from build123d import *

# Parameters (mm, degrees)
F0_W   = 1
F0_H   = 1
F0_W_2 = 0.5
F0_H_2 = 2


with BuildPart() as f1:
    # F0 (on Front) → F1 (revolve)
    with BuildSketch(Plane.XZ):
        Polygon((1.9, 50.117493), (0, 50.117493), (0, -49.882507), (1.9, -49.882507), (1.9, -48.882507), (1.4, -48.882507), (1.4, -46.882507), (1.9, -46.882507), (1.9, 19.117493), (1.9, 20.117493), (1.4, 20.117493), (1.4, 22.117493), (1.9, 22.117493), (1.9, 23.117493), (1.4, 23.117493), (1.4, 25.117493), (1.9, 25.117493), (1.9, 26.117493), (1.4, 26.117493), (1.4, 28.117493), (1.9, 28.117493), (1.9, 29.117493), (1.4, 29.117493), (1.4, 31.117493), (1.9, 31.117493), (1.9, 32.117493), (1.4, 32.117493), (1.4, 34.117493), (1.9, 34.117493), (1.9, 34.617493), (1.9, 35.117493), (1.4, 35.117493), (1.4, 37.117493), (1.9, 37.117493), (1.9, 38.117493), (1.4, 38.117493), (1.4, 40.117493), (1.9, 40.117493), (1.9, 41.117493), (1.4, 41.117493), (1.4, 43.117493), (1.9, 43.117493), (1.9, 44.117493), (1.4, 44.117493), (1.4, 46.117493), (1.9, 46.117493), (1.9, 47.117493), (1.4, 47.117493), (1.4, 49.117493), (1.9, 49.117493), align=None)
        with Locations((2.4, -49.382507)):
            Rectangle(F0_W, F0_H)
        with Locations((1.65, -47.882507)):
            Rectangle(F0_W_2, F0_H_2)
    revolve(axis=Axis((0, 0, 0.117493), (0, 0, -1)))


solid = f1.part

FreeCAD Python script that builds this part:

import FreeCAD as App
import Part
import Sketcher
Q = App.Units.Quantity

doc = App.newDocument("Part")
body = doc.addObject("PartDesign::Body", "Body")

# Sketch on XZ plane
sketch1 = doc.addObject("Sketcher::SketchObject", "Sketch")
body.addObject(sketch1)
sketch1.AttachmentSupport = (doc.XZ_Plane, [""])
sketch1.MapMode = "FlatFace"
sketch1.addGeometry([
    Part.LineSegment(App.Vector(1.9, 50.1, 0), App.Vector(0, 50.1, 0)),  # 0
    Part.LineSegment(App.Vector(0, 50.1, 0), App.Vector(0, -49.9, 0)),  # 1
    Part.LineSegment(App.Vector(0, -49.9, 0), App.Vector(2.9, -49.9, 0)),  # 2
    Part.LineSegment(App.Vector(2.9, -49.9, 0), App.Vector(2.9, -48.9, 0)),  # 3
    Part.LineSegment(App.Vector(2.9, -48.9, 0), App.Vector(1.9, -48.9, 0)),  # 4
    Part.LineSegment(App.Vector(1.9, -48.9, 0), App.Vector(1.9, 20.1, 0)),  # 5
    Part.LineSegment(App.Vector(1.9, 20.1, 0), App.Vector(1.4, 20.1, 0)),  # 6
    Part.LineSegment(App.Vector(1.4, 20.1, 0), App.Vector(1.4, 22.1, 0)),  # 7
    Part.LineSegment(App.Vector(1.4, 22.1, 0), App.Vector(1.9, 22.1, 0)),  # 8
    Part.LineSegment(App.Vector(1.9, 22.1, 0), App.Vector(1.9, 23.1, 0)),  # 9
    Part.LineSegment(App.Vector(1.9, 23.1, 0), App.Vector(1.4, 23.1, 0)),  # 10
    Part.LineSegment(App.Vector(1.4, 23.1, 0), App.Vector(1.4, 25.1, 0)),  # 11
    Part.LineSegment(App.Vector(1.4, 25.1, 0), App.Vector(1.9, 25.1, 0)),  # 12
    Part.LineSegment(App.Vector(1.9, 25.1, 0), App.Vector(1.9, 26.1, 0)),  # 13
    Part.LineSegment(App.Vector(1.9, 26.1, 0), App.Vector(1.4, 26.1, 0)),  # 14
    Part.LineSegment(App.Vector(1.4, 26.1, 0), App.Vector(1.4, 28.1, 0)),  # 15
    Part.LineSegment(App.Vector(1.4, 28.1, 0), App.Vector(1.9, 28.1, 0)),  # 16
    Part.LineSegment(App.Vector(1.9, 28.1, 0), App.Vector(1.9, 29.1, 0)),  # 17
    Part.LineSegment(App.Vector(1.9, 29.1, 0), App.Vector(1.4, 29.1, 0)),  # 18
    Part.LineSegment(App.Vector(1.4, 29.1, 0), App.Vector(1.4, 31.1, 0)),  # 19
    Part.LineSegment(App.Vector(1.4, 31.1, 0), App.Vector(1.9, 31.1, 0)),  # 20
    Part.LineSegment(App.Vector(1.9, 31.1, 0), App.Vector(1.9, 32.1, 0)),  # 21
    Part.LineSegment(App.Vector(1.9, 32.1, 0), App.Vector(1.4, 32.1, 0)),  # 22
    Part.LineSegment(App.Vector(1.4, 32.1, 0), App.Vector(1.4, 34.1, 0)),  # 23
    Part.LineSegment(App.Vector(1.4, 34.1, 0), App.Vector(1.9, 34.1, 0)),  # 24
    Part.LineSegment(App.Vector(1.9, 34.1, 0), App.Vector(1.9, 35.1, 0)),  # 25
    Part.LineSegment(App.Vector(1.9, 35.1, 0), App.Vector(1.4, 35.1, 0)),  # 26
    Part.LineSegment(App.Vector(1.4, 35.1, 0), App.Vector(1.4, 37.1, 0)),  # 27
    Part.LineSegment(App.Vector(1.4, 37.1, 0), App.Vector(1.9, 37.1, 0)),  # 28
    Part.LineSegment(App.Vector(1.9, 37.1, 0), App.Vector(1.9, 38.1, 0)),  # 29
    Part.LineSegment(App.Vector(1.9, 38.1, 0), App.Vector(1.4, 38.1, 0)),  # 30
    Part.LineSegment(App.Vector(1.4, 38.1, 0), App.Vector(1.4, 40.1, 0)),  # 31
    Part.LineSegment(App.Vector(1.4, 40.1, 0), App.Vector(1.9, 40.1, 0)),  # 32
    Part.LineSegment(App.Vector(1.9, 40.1, 0), App.Vector(1.9, 41.1, 0)),  # 33
    Part.LineSegment(App.Vector(1.9, 41.1, 0), App.Vector(1.4, 41.1, 0)),  # 34
    Part.LineSegment(App.Vector(1.4, 41.1, 0), App.Vector(1.4, 43.1, 0)),  # 35
    Part.LineSegment(App.Vector(1.4, 43.1, 0), App.Vector(1.9, 43.1, 0)),  # 36
    Part.LineSegment(App.Vector(1.9, 43.1, 0), App.Vector(1.9, 44.1, 0)),  # 37
    Part.LineSegment(App.Vector(1.9, 44.1, 0), App.Vector(1.4, 44.1, 0)),  # 38
    Part.LineSegment(App.Vector(1.4, 44.1, 0), App.Vector(1.4, 46.1, 0)),  # 39
    Part.LineSegment(App.Vector(1.4, 46.1, 0), App.Vector(1.9, 46.1, 0)),  # 40
    Part.LineSegment(App.Vector(1.9, 46.1, 0), App.Vector(1.9, 47.1, 0)),  # 41
    Part.LineSegment(App.Vector(1.9, 47.1, 0), App.Vector(1.4, 47.1, 0)),  # 42
    Part.LineSegment(App.Vector(1.4, 47.1, 0), App.Vector(1.4, 49.1, 0)),  # 43
    Part.LineSegment(App.Vector(1.4, 49.1, 0), App.Vector(1.9, 49.1, 0)),  # 44
    Part.LineSegment(App.Vector(1.9, 49.1, 0), App.Vector(1.9, 50.1, 0)),  # 45
], False)
sketch1.addConstraint([
    Sketcher.Constraint("Coincident", 0, 2, 1, 1),
    Sketcher.Constraint("Coincident", 1, 2, 2, 1),
    Sketcher.Constraint("Coincident", 2, 2, 3, 1),
    Sketcher.Constraint("Coincident", 3, 2, 4, 1),
    Sketcher.Constraint("Coincident", 4, 2, 5, 1),
    Sketcher.Constraint("Coincident", 5, 2, 6, 1),
    Sketcher.Constraint("Coincident", 6, 2, 7, 1),
    Sketcher.Constraint("Coincident", 7, 2, 8, 1),
    Sketcher.Constraint("Coincident", 8, 2, 9, 1),
    Sketcher.Constraint("Coincident", 9, 2, 10, 1),
    Sketcher.Constraint("Coincident", 10, 2, 11, 1),
    Sketcher.Constraint("Coincident", 11, 2, 12, 1),
    Sketcher.Constraint("Coincident", 12, 2, 13, 1),
    Sketcher.Constraint("Coincident", 13, 2, 14, 1),
    Sketcher.Constraint("Coincident", 14, 2, 15, 1),
    Sketcher.Constraint("Coincident", 15, 2, 16, 1),
    Sketcher.Constraint("Coincident", 16, 2, 17, 1),
    Sketcher.Constraint("Coincident", 17, 2, 18, 1),
    Sketcher.Constraint("Coincident", 18, 2, 19, 1),
    Sketcher.Constraint("Coincident", 19, 2, 20, 1),
    Sketcher.Constraint("Coincident", 20, 2, 21, 1),
    Sketcher.Constraint("Coincident", 21, 2, 22, 1),
    Sketcher.Constraint("Coincident", 22, 2, 23, 1),
    Sketcher.Constraint("Coincident", 23, 2, 24, 1),
    Sketcher.Constraint("Coincident", 24, 2, 25, 1),
    Sketcher.Constraint("Coincident", 25, 2, 26, 1),
    Sketcher.Constraint("Coincident", 26, 2, 27, 1),
    Sketcher.Constraint("Coincident", 27, 2, 28, 1),
    Sketcher.Constraint("Coincident", 28, 2, 29, 1),
    Sketcher.Constraint("Coincident", 29, 2, 30, 1),
    Sketcher.Constraint("Coincident", 30, 2, 31, 1),
    Sketcher.Constraint("Coincident", 31, 2, 32, 1),
    Sketcher.Constraint("Coincident", 32, 2, 33, 1),
    Sketcher.Constraint("Coincident", 33, 2, 34, 1),
    Sketcher.Constraint("Coincident", 34, 2, 35, 1),
    Sketcher.Constraint("Coincident", 35, 2, 36, 1),
    Sketcher.Constraint("Coincident", 36, 2, 37, 1),
    Sketcher.Constraint("Coincident", 37, 2, 38, 1),
    Sketcher.Constraint("Coincident", 38, 2, 39, 1),
    Sketcher.Constraint("Coincident", 39, 2, 40, 1),
    Sketcher.Constraint("Coincident", 40, 2, 41, 1),
    Sketcher.Constraint("Coincident", 41, 2, 42, 1),
    Sketcher.Constraint("Coincident", 42, 2, 43, 1),
    Sketcher.Constraint("Coincident", 43, 2, 44, 1),
    Sketcher.Constraint("Coincident", 44, 2, 45, 1),
    Sketcher.Constraint("Coincident", 45, 2, 0, 1),
    Sketcher.Constraint("Horizontal", 0),
    Sketcher.Constraint("Vertical", 1),
    Sketcher.Constraint("Horizontal", 2),
    Sketcher.Constraint("Vertical", 3),
    Sketcher.Constraint("Horizontal", 4),
    Sketcher.Constraint("Vertical", 5),
    Sketcher.Constraint("Horizontal", 6),
    Sketcher.Constraint("Vertical", 7),
    Sketcher.Constraint("Horizontal", 8),
    Sketcher.Constraint("Vertical", 9),
    Sketcher.Constraint("Horizontal", 10),
    Sketcher.Constraint("Vertical", 11),
    Sketcher.Constraint("Horizontal", 12),
    Sketcher.Constraint("Vertical", 13),
    Sketcher.Constraint("Horizontal", 14),
    Sketcher.Constraint("Vertical", 15),
    Sketcher.Constraint("Horizontal", 16),
    Sketcher.Constraint("Vertical", 17),
    Sketcher.Constraint("Horizontal", 18),
    Sketcher.Constraint("Vertical", 19),
    Sketcher.Constraint("Horizontal", 20),
    Sketcher.Constraint("Vertical", 21),
    Sketcher.Constraint("Horizontal", 22),
    Sketcher.Constraint("Vertical", 23),
    Sketcher.Constraint("Horizontal", 24),
    Sketcher.Constraint("Vertical", 25),
    Sketcher.Constraint("Horizontal", 26),
    Sketcher.Constraint("Vertical", 27),
    Sketcher.Constraint("Horizontal", 28),
    Sketcher.Constraint("Vertical", 29),
    Sketcher.Constraint("Horizontal", 30),
    Sketcher.Constraint("Vertical", 31),
    Sketcher.Constraint("Horizontal", 32),
    Sketcher.Constraint("Vertical", 33),
    Sketcher.Constraint("Horizontal", 34),
    Sketcher.Constraint("Vertical", 35),
    Sketcher.Constraint("Horizontal", 36),
    Sketcher.Constraint("Vertical", 37),
    Sketcher.Constraint("Horizontal", 38),
    Sketcher.Constraint("Vertical", 39),
    Sketcher.Constraint("Horizontal", 40),
    Sketcher.Constraint("Vertical", 41),
    Sketcher.Constraint("Horizontal", 42),
    Sketcher.Constraint("Vertical", 43),
    Sketcher.Constraint("Horizontal", 44),
    Sketcher.Constraint("Vertical", 45),
    Sketcher.Constraint("PointOnObject", 0, 2, -2),
    Sketcher.Constraint("Vertical", 5, 2, 8, 2),
    Sketcher.Constraint("Vertical", 7, 2, 10, 2),
    Sketcher.Constraint("Vertical", 9, 2, 12, 2),
    Sketcher.Constraint("Vertical", 11, 2, 14, 2),
    Sketcher.Constraint("Vertical", 13, 2, 16, 2),
    Sketcher.Constraint("Vertical", 15, 2, 18, 2),
    Sketcher.Constraint("Vertical", 17, 2, 20, 2),
    Sketcher.Constraint("Vertical", 19, 2, 22, 2),
    Sketcher.Constraint("Vertical", 21, 2, 24, 2),
    Sketcher.Constraint("Vertical", 23, 2, 26, 2),
    Sketcher.Constraint("Vertical", 25, 2, 28, 2),
    Sketcher.Constraint("Vertical", 27, 2, 30, 2),
    Sketcher.Constraint("Vertical", 29, 2, 32, 2),
    Sketcher.Constraint("Vertical", 31, 2, 34, 2),
    Sketcher.Constraint("Vertical", 33, 2, 36, 2),
    Sketcher.Constraint("Vertical", 35, 2, 38, 2),
    Sketcher.Constraint("Vertical", 37, 2, 40, 2),
    Sketcher.Constraint("Vertical", 39, 2, 42, 2),
    Sketcher.Constraint("Vertical", 41, 2, 44, 2),
    Sketcher.Constraint("Equal", 4, 3),
    Sketcher.Constraint("Equal", 3, 9),
    Sketcher.Constraint("Equal", 7, 11),
    Sketcher.Constraint("Equal", 9, 13),
    Sketcher.Constraint("Equal", 11, 15),
    Sketcher.Constraint("Equal", 13, 17),
    Sketcher.Constraint("Equal", 15, 19),
    Sketcher.Constraint("Equal", 17, 21),
    Sketcher.Constraint("Equal", 19, 23),
    Sketcher.Constraint("Equal", 21, 25),
    Sketcher.Constraint("Equal", 23, 27),
    Sketcher.Constraint("Equal", 25, 29),
    Sketcher.Constraint("Equal", 27, 31),
    Sketcher.Constraint("Equal", 29, 33),
    Sketcher.Constraint("Equal", 31, 35),
    Sketcher.Constraint("Equal", 33, 37),
    Sketcher.Constraint("Equal", 35, 39),
    Sketcher.Constraint("Equal", 37, 41),
    Sketcher.Constraint("Equal", 39, 43),
    Sketcher.Constraint("Equal", 41, 45),
    Sketcher.Constraint("DistanceX", 4, 2, 4, 1, Q("1 mm")),
    Sketcher.Constraint("DistanceY", 1, 2, 1, 1, Q("100 mm")),
    Sketcher.Constraint("DistanceY", 5, 1, 5, 2, Q("69 mm")),
    Sketcher.Constraint("DistanceX", 0, 2, 0, 1, Q("1.9 mm")),
    Sketcher.Constraint("DistanceX", 6, 2, 6, 1, Q("0.5 mm")),
    Sketcher.Constraint("DistanceY", -1, 1, 0, 2, Q("50.117493 mm")),
])
revolution = doc.addObject("PartDesign::Revolution", "Revolution")
body.addObject(revolution)
revolution.Profile = sketch1
revolution.ReferenceAxis = (sketch1, ["V_Axis"])
revolution.Angle = 360

doc.recompute()
